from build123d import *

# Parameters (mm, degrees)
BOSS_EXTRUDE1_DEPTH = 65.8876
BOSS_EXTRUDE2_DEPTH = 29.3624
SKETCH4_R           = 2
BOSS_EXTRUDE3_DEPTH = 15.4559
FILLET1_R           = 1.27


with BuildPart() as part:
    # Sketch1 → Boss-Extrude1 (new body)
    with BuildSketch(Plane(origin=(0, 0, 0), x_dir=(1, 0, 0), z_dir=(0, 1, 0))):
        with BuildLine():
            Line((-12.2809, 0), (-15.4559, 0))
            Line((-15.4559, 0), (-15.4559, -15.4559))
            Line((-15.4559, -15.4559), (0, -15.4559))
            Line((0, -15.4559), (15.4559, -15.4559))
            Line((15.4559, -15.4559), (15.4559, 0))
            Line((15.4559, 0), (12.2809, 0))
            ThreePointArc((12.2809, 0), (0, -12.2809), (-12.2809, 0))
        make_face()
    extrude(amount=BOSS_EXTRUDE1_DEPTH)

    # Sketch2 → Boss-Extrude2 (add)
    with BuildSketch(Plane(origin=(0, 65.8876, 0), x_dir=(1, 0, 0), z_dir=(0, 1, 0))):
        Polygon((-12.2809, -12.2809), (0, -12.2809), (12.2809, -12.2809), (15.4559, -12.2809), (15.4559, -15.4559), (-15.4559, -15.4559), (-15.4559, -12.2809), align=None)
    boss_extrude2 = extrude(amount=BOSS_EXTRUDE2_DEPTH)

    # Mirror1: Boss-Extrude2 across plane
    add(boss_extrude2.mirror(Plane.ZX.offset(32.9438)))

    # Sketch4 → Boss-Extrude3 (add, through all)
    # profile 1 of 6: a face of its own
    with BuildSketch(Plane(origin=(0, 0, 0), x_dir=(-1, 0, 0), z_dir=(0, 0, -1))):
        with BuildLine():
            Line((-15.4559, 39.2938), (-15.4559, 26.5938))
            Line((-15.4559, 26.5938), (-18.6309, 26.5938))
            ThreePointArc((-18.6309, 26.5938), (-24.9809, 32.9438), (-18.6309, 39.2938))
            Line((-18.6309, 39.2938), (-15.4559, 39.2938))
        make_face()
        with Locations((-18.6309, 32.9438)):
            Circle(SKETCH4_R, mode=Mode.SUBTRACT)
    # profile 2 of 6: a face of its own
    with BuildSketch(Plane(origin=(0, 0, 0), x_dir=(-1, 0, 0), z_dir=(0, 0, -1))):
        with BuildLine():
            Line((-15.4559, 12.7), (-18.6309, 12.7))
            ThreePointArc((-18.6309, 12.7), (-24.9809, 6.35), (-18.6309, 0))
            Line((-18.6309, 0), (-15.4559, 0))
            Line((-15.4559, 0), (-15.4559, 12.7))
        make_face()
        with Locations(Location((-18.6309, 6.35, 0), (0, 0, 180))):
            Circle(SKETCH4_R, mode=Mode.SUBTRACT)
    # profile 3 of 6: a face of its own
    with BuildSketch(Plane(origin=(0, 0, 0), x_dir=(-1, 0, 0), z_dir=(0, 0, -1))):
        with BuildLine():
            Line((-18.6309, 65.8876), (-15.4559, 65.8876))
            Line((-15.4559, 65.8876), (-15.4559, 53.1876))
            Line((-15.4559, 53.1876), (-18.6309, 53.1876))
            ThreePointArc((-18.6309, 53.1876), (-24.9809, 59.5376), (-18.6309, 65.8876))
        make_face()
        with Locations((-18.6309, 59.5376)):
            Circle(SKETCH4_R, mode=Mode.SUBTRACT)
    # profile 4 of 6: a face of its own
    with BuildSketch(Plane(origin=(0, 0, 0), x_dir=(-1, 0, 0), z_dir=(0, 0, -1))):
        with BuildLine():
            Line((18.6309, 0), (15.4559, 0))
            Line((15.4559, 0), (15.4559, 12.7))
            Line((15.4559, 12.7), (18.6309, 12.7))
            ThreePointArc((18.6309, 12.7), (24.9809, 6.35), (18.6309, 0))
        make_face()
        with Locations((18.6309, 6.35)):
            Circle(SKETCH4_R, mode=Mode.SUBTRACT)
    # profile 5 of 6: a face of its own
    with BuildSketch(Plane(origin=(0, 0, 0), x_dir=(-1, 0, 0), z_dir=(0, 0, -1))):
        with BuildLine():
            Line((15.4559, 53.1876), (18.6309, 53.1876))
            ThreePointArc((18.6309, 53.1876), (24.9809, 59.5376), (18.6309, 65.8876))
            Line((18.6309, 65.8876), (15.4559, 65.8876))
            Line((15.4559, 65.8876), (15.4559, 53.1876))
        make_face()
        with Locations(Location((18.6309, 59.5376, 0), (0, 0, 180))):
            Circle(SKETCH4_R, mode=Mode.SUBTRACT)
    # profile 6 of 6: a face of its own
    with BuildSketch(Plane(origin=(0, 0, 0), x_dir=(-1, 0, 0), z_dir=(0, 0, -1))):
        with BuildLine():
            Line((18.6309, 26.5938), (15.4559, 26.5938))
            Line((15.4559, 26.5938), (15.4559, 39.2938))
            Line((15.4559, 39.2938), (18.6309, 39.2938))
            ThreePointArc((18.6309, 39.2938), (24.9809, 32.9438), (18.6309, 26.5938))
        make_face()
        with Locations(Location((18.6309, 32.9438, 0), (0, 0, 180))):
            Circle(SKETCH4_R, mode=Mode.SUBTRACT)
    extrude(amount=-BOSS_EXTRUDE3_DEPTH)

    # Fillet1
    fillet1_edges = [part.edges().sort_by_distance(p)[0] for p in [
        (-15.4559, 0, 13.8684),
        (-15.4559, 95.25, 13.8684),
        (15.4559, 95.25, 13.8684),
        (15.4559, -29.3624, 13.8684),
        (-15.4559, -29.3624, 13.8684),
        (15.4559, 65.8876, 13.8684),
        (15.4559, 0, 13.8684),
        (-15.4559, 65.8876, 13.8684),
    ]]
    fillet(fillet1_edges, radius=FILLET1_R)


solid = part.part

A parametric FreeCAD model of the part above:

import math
import FreeCAD as App
import Part
import Sketcher
from FreeCAD import Vector
Q = App.Units.Quantity


def edges_at(feature, points):
    """Names of the edges that pass closest to the given points."""
    edges = feature.Shape.Edges
    near = lambda p: min(range(len(edges)), key=lambda i: edges[i].distToShape(Part.Vertex(*p))[0])
    return sorted({f"Edge{near(p) + 1}" for p in points})

doc = App.newDocument("Part")
params = doc.addObject("Spreadsheet::Sheet", "Params")
for row, (alias, value) in enumerate([
    ("sketch1_width", "0.125 in"),
    ("pad1_length", "2.594 in"),
    ("sketch2_width", "1.217 in"),
    ("sketch2_height", "0.125 in"),
    ("pad2_length", "1.156 in"),
    ("sketch3_radius", "0.25 in"),
    ("sketch3_width", "0.125 in"),
    ("pad3_length", "0.6085 in"),
    ("fillet_radius", "0.05 in"),
], start=1):
    params.set(f"A{row}", alias)
    params.set(f"B{row}", "=" + value)
    params.setAlias(f"B{row}", alias)

body = doc.addObject("PartDesign::Body", "Body")

# Sketch on XZ plane
sketch1 = body.newObject("Sketcher::SketchObject", "Sketch")
sketch1.AttachmentSupport = (doc.getObject("XZ_Plane"), [""])
sketch1.MapMode = "FlatFace"
sketch1.addGeometry([
    Part.LineSegment(Vector(-12.3, 0, 0), Vector(-15.5, 0, 0)),  # 0
    Part.LineSegment(Vector(-15.5, 0, 0), Vector(-15.5, 15.5, 0)),  # 1
    Part.LineSegment(Vector(-15.5, 15.5, 0), Vector(15.5, 15.5, 0)),  # 2
    Part.LineSegment(Vector(15.5, 15.5, 0), Vector(15.5, 0, 0)),  # 3
    Part.LineSegment(Vector(15.5, 0, 0), Vector(12.3, 0, 0)),  # 4
    Part.ArcOfCircle(Part.Circle(Vector(0, 0, 0), Vector(0, 0, 1), 12.3), math.radians(0), math.radians(180)),  # 5
], False)
sketch1.addConstraint([
    Sketcher.Constraint("Coincident", 0, 2, 1, 1),
    Sketcher.Constraint("Coincident", 1, 2, 2, 1),
    Sketcher.Constraint("Coincident", 2, 2, 3, 1),
    Sketcher.Constraint("Coincident", 3, 2, 4, 1),
    Sketcher.Constraint("Coincident", 4, 2, 5, 1),
    Sketcher.Constraint("Coincident", 5, 2, 0, 1),
    Sketcher.Constraint("Horizontal", 0),
    Sketcher.Constraint("Vertical", 1),
    Sketcher.Constraint("Horizontal", 2),
    Sketcher.Constraint("Vertical", 3),
    Sketcher.Constraint("Horizontal", 4),
    Sketcher.Constraint("Coincident", 5, 3, -1, 1),
    Sketcher.Constraint("Symmetric", 0, 2, 3, 2, -1, 1),
    Sketcher.Constraint("PointOnObject", 0, 2, -1),
    Sketcher.Constraint("Radius", 5, Q("0.4835 in")),
    Sketcher.Constraint("DistanceX", 0, 2, 0, 1, Q("0.125 in")),
    Sketcher.Constraint("DistanceY", 1, 1, 1, 2, Q("0.6085 in")),
])
sketch1.setExpression("Constraints[15]", "Params.sketch1_width")
pad1 = body.newObject("PartDesign::Pad", "Pad")
pad1.Profile = sketch1
pad1.setExpression("Length", "Params.pad1_length")
pad1.Reversed = True

# Sketch on XZ plane
sketch2 = body.newObject("Sketcher::SketchObject", "Sketch001")
sketch2.AttachmentSupport = (doc.getObject("XZ_Plane"), [""])
sketch2.MapMode = "FlatFace"
sketch2.AttachmentOffset = App.Placement(Vector(0, 0, -2.594 * 25.4), App.Rotation())
sketch2.addGeometry([
    Part.LineSegment(Vector(15.5, 12.3, 0), Vector(-15.5, 12.3, 0)),
    Part.LineSegment(Vector(-15.5, 12.3, 0), Vector(-15.5, 15.5, 0)),
    Part.LineSegment(Vector(-15.5, 15.5, 0), Vector(15.5, 15.5, 0)),
    Part.LineSegment(Vector(15.5, 15.5, 0), Vector(15.5, 12.3, 0)),
], False)
sketch2.addConstraint([
    Sketcher.Constraint("Coincident", 0, 2, 1, 1),
    Sketcher.Constraint("Coincident", 1, 2, 2, 1),
    Sketcher.Constraint("Coincident", 2, 2, 3, 1),
    Sketcher.Constraint("Coincident", 3, 2, 0, 1),
    Sketcher.Constraint("Horizontal", 0),
    Sketcher.Constraint("Vertical", 1),
    Sketcher.Constraint("Horizontal", 2),
    Sketcher.Constraint("Vertical", 3),
    Sketcher.Constraint("DistanceX", 0, 2, 0, 1, Q("1.217 in")),
    Sketcher.Constraint("DistanceY", 1, 1, 1, 2, Q("0.125 in")),
    Sketcher.Constraint("DistanceX", 0, 2, -1, 1, Q("0.6085 in")),
    Sketcher.Constraint("DistanceY", -1, 1, 0, 2, Q("0.4835 in")),
])
sketch2.setExpression("Constraints[8]", "Params.sketch2_width")
sketch2.setExpression("Constraints[9]", "Params.sketch2_height")
pad2 = body.newObject("PartDesign::Pad", "Pad001")
pad2.Profile = sketch2
pad2.setExpression("Length", "Params.pad2_length")
pad2.Reversed = True
doc.recompute()

datumplane = body.newObject("PartDesign::Plane", "DatumPlane")
datumplane.AttachmentSupport = (doc.getObject("XZ_Plane"), [""])
datumplane.MapMode = "FlatFace"
datumplane.AttachmentOffset = App.Placement(Vector(0, 0, -1.297 * 25.4), App.Rotation())
mirrored = body.newObject("PartDesign::Mirrored", "Mirrored")
mirrored.Originals = [pad2]
mirrored.MirrorPlane = (datumplane, [""])
body.Tip = mirrored

# Sketch on XY plane
sketch3 = body.newObject("Sketcher::SketchObject", "Sketch002")
sketch3.AttachmentSupport = (doc.getObject("XY_Plane"), [""])
sketch3.MapMode = "FlatFace"
sketch3.addGeometry([
    Part.LineSegment(Vector(15.5, 26.6, 0), Vector(15.5, 39.3, 0)),  # 0
    Part.LineSegment(Vector(15.5, 39.3, 0), Vector(18.6, 39.3, 0)),  # 1
    Part.ArcOfCircle(Part.Circle(Vector(18.6, 32.9, 0), Vector(0, 0, 1), 6.3), math.radians(-90), math.radians(90)),  # 2
    Part.LineSegment(Vector(18.6, 26.6, 0), Vector(15.5, 26.6, 0)),  # 3
    Part.Circle(Vector(18.6, 32.9, 0), Vector(0, 0, 1), 2),  # 4
    Part.LineSegment(Vector(15.5, 12.7, 0), Vector(18.6, 12.7, 0)),  # 5
    Part.ArcOfCircle(Part.Circle(Vector(18.6, 6.3, 0), Vector(0, 0, 1), 6.3), math.radians(-90), math.radians(90)),  # 6
    Part.LineSegment(Vector(18.6, 0, 0), Vector(15.5, 0, 0)),  # 7
    Part.LineSegment(Vector(15.5, 0, 0), Vector(15.5, 12.7, 0)),  # 8
    Part.Circle(Vector(18.6, 6.3, 0), Vector(0, 0, 1), 2),  # 9
    Part.LineSegment(Vector(15.5, 65.9, 0), Vector(18.6, 65.9, 0)),  # 10
    Part.ArcOfCircle(Part.Circle(Vector(18.6, 59.5, 0), Vector(0, 0, 1), 6.3), math.radians(-90), math.radians(90)),  # 11
    Part.LineSegment(Vector(18.6, 53.2, 0), Vector(15.5, 53.2, 0)),  # 12
    Part.LineSegment(Vector(15.5, 53.2, 0), Vector(15.5, 65.9, 0)),  # 13
    Part.Circle(Vector(18.6, 59.5, 0), Vector(0, 0, 1), 2),  # 14
    Part.LineSegment(Vector(-15.5, 0, 0), Vector(-18.6, 0, 0)),  # 15
    Part.ArcOfCircle(Part.Circle(Vector(-18.6, 6.3, 0), Vector(0, 0, 1), 6.3), math.radians(90), math.radians(270)),  # 16
    Part.LineSegment(Vector(-18.6, 12.7, 0), Vector(-15.5, 12.7, 0)),  # 17
    Part.LineSegment(Vector(-15.5, 12.7, 0), Vector(-15.5, 0, 0)),  # 18
    Part.Circle(Vector(-18.6, 6.3, 0), Vector(0, 0, 1), 2),  # 19
    Part.LineSegment(Vector(-15.5, 53.2, 0), Vector(-18.6, 53.2, 0)),  # 20
    Part.ArcOfCircle(Part.Circle(Vector(-18.6, 59.5, 0), Vector(0, 0, 1), 6.3), math.radians(90), math.radians(270)),  # 21
    Part.LineSegment(Vector(-18.6, 65.9, 0), Vector(-15.5, 65.9, 0)),  # 22
    Part.LineSegment(Vector(-15.5, 65.9, 0), Vector(-15.5, 53.2, 0)),  # 23
    Part.Circle(Vector(-18.6, 59.5, 0), Vector(0, 0, 1), 2),  # 24
    Part.LineSegment(Vector(-15.5, 26.6, 0), Vector(-18.6, 26.6, 0)),  # 25
    Part.ArcOfCircle(Part.Circle(Vector(-18.6, 32.9, 0), Vector(0, 0, 1), 6.3), math.radians(90), math.radians(270)),  # 26
    Part.LineSegment(Vector(-18.6, 39.3, 0), Vector(-15.5, 39.3, 0)),  # 27
    Part.LineSegment(Vector(-15.5, 39.3, 0), Vector(-15.5, 26.6, 0)),  # 28
    Part.Circle(Vector(-18.6, 32.9, 0), Vector(0, 0, 1), 2),  # 29
], False)
sketch3.addConstraint([
    Sketcher.Constraint("Coincident", 0, 2, 1, 1),
    Sketcher.Constraint("Tangent", 1, 2, 2, 2),
    Sketcher.Constraint("Tangent", 2, 1, 3, 1),
    Sketcher.Constraint("Coincident", 3, 2, 0, 1),
    Sketcher.Constraint("Tangent", 5, 2, 6, 2),
    Sketcher.Constraint("Tangent", 6, 1, 7, 1),
    Sketcher.Constraint("Coincident", 7, 2, 8, 1),
    Sketcher.Constraint("Coincident", 8, 2, 5, 1),
    Sketcher.Constraint("Tangent", 10, 2, 11, 2),
    Sketcher.Constraint("Tangent", 11, 1, 12, 1),
    Sketcher.Constraint("Coincident", 12, 2, 13, 1),
    Sketcher.Constraint("Coincident", 13, 2, 10, 1),
    Sketcher.Constraint("Tangent", 15, 2, 16, 2),
    Sketcher.Constraint("Tangent", 16, 1, 17, 1),
    Sketcher.Constraint("Coincident", 17, 2, 18, 1),
    Sketcher.Constraint("Coincident", 18, 2, 15, 1),
    Sketcher.Constraint("Tangent", 20, 2, 21, 2),
    Sketcher.Constraint("Tangent", 21, 1, 22, 1),
    Sketcher.Constraint("Coincident", 22, 2, 23, 1),
    Sketcher.Constraint("Coincident", 23, 2, 20, 1),
    Sketcher.Constraint("Tangent", 25, 2, 26, 2),
    Sketcher.Constraint("Tangent", 26, 1, 27, 1),
    Sketcher.Constraint("Coincident", 27, 2, 28, 1),
    Sketcher.Constraint("Coincident", 28, 2, 25, 1),
    Sketcher.Constraint("Vertical", 0),
    Sketcher.Constraint("Horizontal", 1),
    Sketcher.Constraint("Horizontal", 3),
    Sketcher.Constraint("Horizontal", 5),
    Sketcher.Constraint("Horizontal", 7),
    Sketcher.Constraint("Vertical", 8),
    Sketcher.Constraint("Horizontal", 10),
    Sketcher.Constraint("Horizontal", 12),
    Sketcher.Constraint("Vertical", 13),
    Sketcher.Constraint("Horizontal", 15),
    Sketcher.Constraint("Horizontal", 17),
    Sketcher.Constraint("Vertical", 18),
    Sketcher.Constraint("Horizontal", 20),
    Sketcher.Constraint("Horizontal", 22),
    Sketcher.Constraint("Vertical", 23),
    Sketcher.Constraint("Horizontal", 25),
    Sketcher.Constraint("Horizontal", 27),
    Sketcher.Constraint("Vertical", 28),
    Sketcher.Constraint("Coincident", 4, 3, 2, 3),
    Sketcher.Constraint("Coincident", 9, 3, 6, 3),
    Sketcher.Constraint("Coincident", 14, 3, 11, 3),
    Sketcher.Constraint("Coincident", 19, 3, 16, 3),
    Sketcher.Constraint("Coincident", 24, 3, 21, 3),
    Sketcher.Constraint("Coincident", 29, 3, 26, 3),
    Sketcher.Constraint("Equal", 2, 6),
    Sketcher.Constraint("Equal", 4, 9),
    Sketcher.Constraint("Equal", 6, 11),
    Sketcher.Constraint("Equal", 9, 14),
    Sketcher.Constraint("Equal", 11, 16),
    Sketcher.Constraint("Equal", 14, 19),
    Sketcher.Constraint("Equal", 16, 21),
    Sketcher.Constraint("Equal", 19, 24),
    Sketcher.Constraint("Equal", 21, 26),
    Sketcher.Constraint("Equal", 24, 29),
    Sketcher.Constraint("Symmetric", 6, 1, 15, 2, -1, 1),
    Sketcher.Constraint("Symmetric", 11, 3, 21, 3, -2),
    Sketcher.Constraint("Symmetric", 2, 3, 26, 3, -2),
    Sketcher.Constraint("Symmetric", 8, 2, 17, 2, -2),
    Sketcher.Constraint("Vertical", 4, 3, 6, 3),
    Sketcher.Constraint("Vertical", 9, 3, 11, 3),
    Sketcher.Constraint("Vertical", 3, 2, 7, 2),
    Sketcher.Constraint("Vertical", 8, 2, 12, 2),
    Sketcher.Constraint("Vertical", 18, 2, 22, 2),
    Sketcher.Constraint("Vertical", 23, 2, 27, 2),
    Sketcher.Constraint("Radius", 2, Q("0.25 in")),
    Sketcher.Constraint("Diameter", 4, 4.0),
    Sketcher.Constraint("DistanceX", 1, 1, 1, 2, Q("0.125 in")),
    Sketcher.Constraint("DistanceY", -1, 1, 2, 3, Q("1.297 in")),
    Sketcher.Constraint("DistanceY", -1, 1, 11, 3, Q("2.344 in")),
    Sketcher.Constraint("DistanceX", 16, 3, 6, 3, Q("1.467 in")),
])
sketch3.setExpression("Constraints[68]", "Params.sketch3_radius")
sketch3.setExpression("Constraints[70]", "Params.sketch3_width")
pad3 = body.newObject("PartDesign::Pad", "Pad002")
pad3.Profile = sketch3
pad3.setExpression("Length", "Params.pad3_length")
doc.recompute()

fillet = body.newObject("PartDesign::Fillet", "Fillet")
fillet.Base = (pad3, edges_at(pad3, [
    (-15.456, 0, 13.868),
    (-15.456, 95.25, 13.868),
    (15.456, 95.25, 13.868),
    (15.456, -29.362, 13.868),
    (-15.456, -29.362, 13.868),
    (15.456, 65.888, 13.868),
    (15.456, 0, 13.868),
    (-15.456, 65.888, 13.868),
]))
fillet.setExpression("Radius", "Params.fillet_radius")

doc.recompute()
